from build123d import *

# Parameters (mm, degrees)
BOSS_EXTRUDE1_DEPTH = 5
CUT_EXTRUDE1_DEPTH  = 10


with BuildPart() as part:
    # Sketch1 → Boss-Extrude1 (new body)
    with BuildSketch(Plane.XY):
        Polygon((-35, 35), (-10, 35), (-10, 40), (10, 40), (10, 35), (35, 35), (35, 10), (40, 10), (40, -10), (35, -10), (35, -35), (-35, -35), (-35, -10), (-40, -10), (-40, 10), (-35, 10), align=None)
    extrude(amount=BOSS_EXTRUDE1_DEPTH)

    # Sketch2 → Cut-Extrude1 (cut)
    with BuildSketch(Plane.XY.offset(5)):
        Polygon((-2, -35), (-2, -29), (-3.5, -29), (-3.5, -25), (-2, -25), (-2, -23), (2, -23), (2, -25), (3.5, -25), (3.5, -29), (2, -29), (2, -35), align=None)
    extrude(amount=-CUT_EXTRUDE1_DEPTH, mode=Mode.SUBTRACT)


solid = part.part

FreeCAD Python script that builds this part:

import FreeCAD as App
import Part
import Sketcher


def add_polygon(sketch, points):
    """Adds a closed chain of lines whose ends are joined by coincident constraints."""
    first, n = sketch.GeometryCount, len(points)
    for a, b in zip(points, points[1:] + points[:1]):
        sketch.addGeometry(Part.LineSegment(App.Vector(*a, 0), App.Vector(*b, 0)), False)
    for i in range(n):
        sketch.addConstraint(Sketcher.Constraint("Coincident", first + i, 2, first + (i + 1) % n, 1))

doc = App.newDocument("Part")
body = doc.addObject("PartDesign::Body", "Body")

# Sketch on XY plane
sketch1 = body.newObject("Sketcher::SketchObject", "Sketch")
sketch1.AttachmentSupport = (doc.getObject("XY_Plane"), [""])
sketch1.MapMode = "FlatFace"
add_polygon(sketch1, [(-10, 35), (-35, 35), (-35, 10), (-40, 10), (-40, -10), (-35, -10), (-35, -35), (35, -35), (35, -10), (40, -10), (40, 10), (35, 10), (35, 35), (10, 35), (10, 40), (-10, 40)])  # lines 0-15
sketch1.addConstraint([
    Sketcher.Constraint("Horizontal", 0),
    Sketcher.Constraint("Vertical", 1),
    Sketcher.Constraint("Horizontal", 2),
    Sketcher.Constraint("Vertical", 3),
    Sketcher.Constraint("Horizontal", 4),
    Sketcher.Constraint("Vertical", 5),
    Sketcher.Constraint("Horizontal", 6),
    Sketcher.Constraint("Vertical", 7),
    Sketcher.Constraint("Horizontal", 8),
    Sketcher.Constraint("Vertical", 9),
    Sketcher.Constraint("Horizontal", 10),
    Sketcher.Constraint("Vertical", 11),
    Sketcher.Constraint("Horizontal", 12),
    Sketcher.Constraint("Vertical", 13),
    Sketcher.Constraint("Horizontal", 14),
    Sketcher.Constraint("Vertical", 15),
    Sketcher.Constraint("Symmetric", 0, 2, 6, 2, -1, 1),
    Sketcher.Constraint("Symmetric", 2, 2, 8, 2, -1, 1),
    Sketcher.Constraint("Symmetric", 4, 2, 10, 2, -1, 1),
    Sketcher.Constraint("Symmetric", 4, 2, 7, 2, -2),
    Sketcher.Constraint("Symmetric", 12, 2, 15, 2, -2),
    Sketcher.Constraint("Equal", 12, 1),
    Sketcher.Constraint("Equal", 14, 3),
    Sketcher.Constraint("Equal", 10, 13),
    Sketcher.Constraint("DistanceX", 0, 2, 0, 1, 25.0),
    Sketcher.Constraint("DistanceX", 2, 2, 2, 1, 5.0),
    Sketcher.Constraint("DistanceX", 6, 1, 6, 2, 70.0),
])
pad1 = body.newObject("PartDesign::Pad", "Pad")
pad1.Profile = sketch1
pad1.Length = 5

# Sketch on XY plane
sketch2 = body.newObject("Sketcher::SketchObject", "Sketch001")
sketch2.AttachmentSupport = (doc.getObject("XY_Plane"), [""])
sketch2.MapMode = "FlatFace"
sketch2.AttachmentOffset = App.Placement(App.Vector(0, 0, 5), App.Rotation())
add_polygon(sketch2, [(-2, -29), (-2, -35), (2, -35), (2, -29), (3.5, -29), (3.5, -25), (2, -25), (2, -23), (-2, -23), (-2, -25), (-3.5, -25), (-3.5, -29)])  # lines 0-11
sketch2.addConstraint([
    Sketcher.Constraint("Vertical", 0),
    Sketcher.Constraint("Horizontal", 1),
    Sketcher.Constraint("Vertical", 2),
    Sketcher.Constraint("Horizontal", 3),
    Sketcher.Constraint("Vertical", 4),
    Sketcher.Constraint("Horizontal", 5),
    Sketcher.Constraint("Vertical", 6),
    Sketcher.Constraint("Horizontal", 7),
    Sketcher.Constraint("Vertical", 8),
    Sketcher.Constraint("Horizontal", 9),
    Sketcher.Constraint("Vertical", 10),
    Sketcher.Constraint("Horizontal", 11),
    Sketcher.Constraint("Symmetric", 5, 2, 8, 2, -2),
    Sketcher.Constraint("Symmetric", 3, 2, 10, 2, -2),
    Sketcher.Constraint("Vertical", 2, 2, 5, 2),
    Sketcher.Constraint("Vertical", 0, 2, 7, 2),
    Sketcher.Constraint("Equal", 7, 4),
    Sketcher.Constraint("DistanceX", 1, 1, 1, 2, 4.0),
    Sketcher.Constraint("DistanceY", 0, 2, 0, 1, 6.0),
    Sketcher.Constraint("DistanceY", 6, 1, 6, 2, 2.0),
    Sketcher.Constraint("DistanceX", 3, 1, 3, 2, 1.5),
    Sketcher.Constraint("DistanceY", 0, 2, -1, 1, 35.0),
])
pocket1 = body.newObject("PartDesign::Pocket", "Pocket")
pocket1.Profile = sketch2
pocket1.Length = 10

doc.recompute()
